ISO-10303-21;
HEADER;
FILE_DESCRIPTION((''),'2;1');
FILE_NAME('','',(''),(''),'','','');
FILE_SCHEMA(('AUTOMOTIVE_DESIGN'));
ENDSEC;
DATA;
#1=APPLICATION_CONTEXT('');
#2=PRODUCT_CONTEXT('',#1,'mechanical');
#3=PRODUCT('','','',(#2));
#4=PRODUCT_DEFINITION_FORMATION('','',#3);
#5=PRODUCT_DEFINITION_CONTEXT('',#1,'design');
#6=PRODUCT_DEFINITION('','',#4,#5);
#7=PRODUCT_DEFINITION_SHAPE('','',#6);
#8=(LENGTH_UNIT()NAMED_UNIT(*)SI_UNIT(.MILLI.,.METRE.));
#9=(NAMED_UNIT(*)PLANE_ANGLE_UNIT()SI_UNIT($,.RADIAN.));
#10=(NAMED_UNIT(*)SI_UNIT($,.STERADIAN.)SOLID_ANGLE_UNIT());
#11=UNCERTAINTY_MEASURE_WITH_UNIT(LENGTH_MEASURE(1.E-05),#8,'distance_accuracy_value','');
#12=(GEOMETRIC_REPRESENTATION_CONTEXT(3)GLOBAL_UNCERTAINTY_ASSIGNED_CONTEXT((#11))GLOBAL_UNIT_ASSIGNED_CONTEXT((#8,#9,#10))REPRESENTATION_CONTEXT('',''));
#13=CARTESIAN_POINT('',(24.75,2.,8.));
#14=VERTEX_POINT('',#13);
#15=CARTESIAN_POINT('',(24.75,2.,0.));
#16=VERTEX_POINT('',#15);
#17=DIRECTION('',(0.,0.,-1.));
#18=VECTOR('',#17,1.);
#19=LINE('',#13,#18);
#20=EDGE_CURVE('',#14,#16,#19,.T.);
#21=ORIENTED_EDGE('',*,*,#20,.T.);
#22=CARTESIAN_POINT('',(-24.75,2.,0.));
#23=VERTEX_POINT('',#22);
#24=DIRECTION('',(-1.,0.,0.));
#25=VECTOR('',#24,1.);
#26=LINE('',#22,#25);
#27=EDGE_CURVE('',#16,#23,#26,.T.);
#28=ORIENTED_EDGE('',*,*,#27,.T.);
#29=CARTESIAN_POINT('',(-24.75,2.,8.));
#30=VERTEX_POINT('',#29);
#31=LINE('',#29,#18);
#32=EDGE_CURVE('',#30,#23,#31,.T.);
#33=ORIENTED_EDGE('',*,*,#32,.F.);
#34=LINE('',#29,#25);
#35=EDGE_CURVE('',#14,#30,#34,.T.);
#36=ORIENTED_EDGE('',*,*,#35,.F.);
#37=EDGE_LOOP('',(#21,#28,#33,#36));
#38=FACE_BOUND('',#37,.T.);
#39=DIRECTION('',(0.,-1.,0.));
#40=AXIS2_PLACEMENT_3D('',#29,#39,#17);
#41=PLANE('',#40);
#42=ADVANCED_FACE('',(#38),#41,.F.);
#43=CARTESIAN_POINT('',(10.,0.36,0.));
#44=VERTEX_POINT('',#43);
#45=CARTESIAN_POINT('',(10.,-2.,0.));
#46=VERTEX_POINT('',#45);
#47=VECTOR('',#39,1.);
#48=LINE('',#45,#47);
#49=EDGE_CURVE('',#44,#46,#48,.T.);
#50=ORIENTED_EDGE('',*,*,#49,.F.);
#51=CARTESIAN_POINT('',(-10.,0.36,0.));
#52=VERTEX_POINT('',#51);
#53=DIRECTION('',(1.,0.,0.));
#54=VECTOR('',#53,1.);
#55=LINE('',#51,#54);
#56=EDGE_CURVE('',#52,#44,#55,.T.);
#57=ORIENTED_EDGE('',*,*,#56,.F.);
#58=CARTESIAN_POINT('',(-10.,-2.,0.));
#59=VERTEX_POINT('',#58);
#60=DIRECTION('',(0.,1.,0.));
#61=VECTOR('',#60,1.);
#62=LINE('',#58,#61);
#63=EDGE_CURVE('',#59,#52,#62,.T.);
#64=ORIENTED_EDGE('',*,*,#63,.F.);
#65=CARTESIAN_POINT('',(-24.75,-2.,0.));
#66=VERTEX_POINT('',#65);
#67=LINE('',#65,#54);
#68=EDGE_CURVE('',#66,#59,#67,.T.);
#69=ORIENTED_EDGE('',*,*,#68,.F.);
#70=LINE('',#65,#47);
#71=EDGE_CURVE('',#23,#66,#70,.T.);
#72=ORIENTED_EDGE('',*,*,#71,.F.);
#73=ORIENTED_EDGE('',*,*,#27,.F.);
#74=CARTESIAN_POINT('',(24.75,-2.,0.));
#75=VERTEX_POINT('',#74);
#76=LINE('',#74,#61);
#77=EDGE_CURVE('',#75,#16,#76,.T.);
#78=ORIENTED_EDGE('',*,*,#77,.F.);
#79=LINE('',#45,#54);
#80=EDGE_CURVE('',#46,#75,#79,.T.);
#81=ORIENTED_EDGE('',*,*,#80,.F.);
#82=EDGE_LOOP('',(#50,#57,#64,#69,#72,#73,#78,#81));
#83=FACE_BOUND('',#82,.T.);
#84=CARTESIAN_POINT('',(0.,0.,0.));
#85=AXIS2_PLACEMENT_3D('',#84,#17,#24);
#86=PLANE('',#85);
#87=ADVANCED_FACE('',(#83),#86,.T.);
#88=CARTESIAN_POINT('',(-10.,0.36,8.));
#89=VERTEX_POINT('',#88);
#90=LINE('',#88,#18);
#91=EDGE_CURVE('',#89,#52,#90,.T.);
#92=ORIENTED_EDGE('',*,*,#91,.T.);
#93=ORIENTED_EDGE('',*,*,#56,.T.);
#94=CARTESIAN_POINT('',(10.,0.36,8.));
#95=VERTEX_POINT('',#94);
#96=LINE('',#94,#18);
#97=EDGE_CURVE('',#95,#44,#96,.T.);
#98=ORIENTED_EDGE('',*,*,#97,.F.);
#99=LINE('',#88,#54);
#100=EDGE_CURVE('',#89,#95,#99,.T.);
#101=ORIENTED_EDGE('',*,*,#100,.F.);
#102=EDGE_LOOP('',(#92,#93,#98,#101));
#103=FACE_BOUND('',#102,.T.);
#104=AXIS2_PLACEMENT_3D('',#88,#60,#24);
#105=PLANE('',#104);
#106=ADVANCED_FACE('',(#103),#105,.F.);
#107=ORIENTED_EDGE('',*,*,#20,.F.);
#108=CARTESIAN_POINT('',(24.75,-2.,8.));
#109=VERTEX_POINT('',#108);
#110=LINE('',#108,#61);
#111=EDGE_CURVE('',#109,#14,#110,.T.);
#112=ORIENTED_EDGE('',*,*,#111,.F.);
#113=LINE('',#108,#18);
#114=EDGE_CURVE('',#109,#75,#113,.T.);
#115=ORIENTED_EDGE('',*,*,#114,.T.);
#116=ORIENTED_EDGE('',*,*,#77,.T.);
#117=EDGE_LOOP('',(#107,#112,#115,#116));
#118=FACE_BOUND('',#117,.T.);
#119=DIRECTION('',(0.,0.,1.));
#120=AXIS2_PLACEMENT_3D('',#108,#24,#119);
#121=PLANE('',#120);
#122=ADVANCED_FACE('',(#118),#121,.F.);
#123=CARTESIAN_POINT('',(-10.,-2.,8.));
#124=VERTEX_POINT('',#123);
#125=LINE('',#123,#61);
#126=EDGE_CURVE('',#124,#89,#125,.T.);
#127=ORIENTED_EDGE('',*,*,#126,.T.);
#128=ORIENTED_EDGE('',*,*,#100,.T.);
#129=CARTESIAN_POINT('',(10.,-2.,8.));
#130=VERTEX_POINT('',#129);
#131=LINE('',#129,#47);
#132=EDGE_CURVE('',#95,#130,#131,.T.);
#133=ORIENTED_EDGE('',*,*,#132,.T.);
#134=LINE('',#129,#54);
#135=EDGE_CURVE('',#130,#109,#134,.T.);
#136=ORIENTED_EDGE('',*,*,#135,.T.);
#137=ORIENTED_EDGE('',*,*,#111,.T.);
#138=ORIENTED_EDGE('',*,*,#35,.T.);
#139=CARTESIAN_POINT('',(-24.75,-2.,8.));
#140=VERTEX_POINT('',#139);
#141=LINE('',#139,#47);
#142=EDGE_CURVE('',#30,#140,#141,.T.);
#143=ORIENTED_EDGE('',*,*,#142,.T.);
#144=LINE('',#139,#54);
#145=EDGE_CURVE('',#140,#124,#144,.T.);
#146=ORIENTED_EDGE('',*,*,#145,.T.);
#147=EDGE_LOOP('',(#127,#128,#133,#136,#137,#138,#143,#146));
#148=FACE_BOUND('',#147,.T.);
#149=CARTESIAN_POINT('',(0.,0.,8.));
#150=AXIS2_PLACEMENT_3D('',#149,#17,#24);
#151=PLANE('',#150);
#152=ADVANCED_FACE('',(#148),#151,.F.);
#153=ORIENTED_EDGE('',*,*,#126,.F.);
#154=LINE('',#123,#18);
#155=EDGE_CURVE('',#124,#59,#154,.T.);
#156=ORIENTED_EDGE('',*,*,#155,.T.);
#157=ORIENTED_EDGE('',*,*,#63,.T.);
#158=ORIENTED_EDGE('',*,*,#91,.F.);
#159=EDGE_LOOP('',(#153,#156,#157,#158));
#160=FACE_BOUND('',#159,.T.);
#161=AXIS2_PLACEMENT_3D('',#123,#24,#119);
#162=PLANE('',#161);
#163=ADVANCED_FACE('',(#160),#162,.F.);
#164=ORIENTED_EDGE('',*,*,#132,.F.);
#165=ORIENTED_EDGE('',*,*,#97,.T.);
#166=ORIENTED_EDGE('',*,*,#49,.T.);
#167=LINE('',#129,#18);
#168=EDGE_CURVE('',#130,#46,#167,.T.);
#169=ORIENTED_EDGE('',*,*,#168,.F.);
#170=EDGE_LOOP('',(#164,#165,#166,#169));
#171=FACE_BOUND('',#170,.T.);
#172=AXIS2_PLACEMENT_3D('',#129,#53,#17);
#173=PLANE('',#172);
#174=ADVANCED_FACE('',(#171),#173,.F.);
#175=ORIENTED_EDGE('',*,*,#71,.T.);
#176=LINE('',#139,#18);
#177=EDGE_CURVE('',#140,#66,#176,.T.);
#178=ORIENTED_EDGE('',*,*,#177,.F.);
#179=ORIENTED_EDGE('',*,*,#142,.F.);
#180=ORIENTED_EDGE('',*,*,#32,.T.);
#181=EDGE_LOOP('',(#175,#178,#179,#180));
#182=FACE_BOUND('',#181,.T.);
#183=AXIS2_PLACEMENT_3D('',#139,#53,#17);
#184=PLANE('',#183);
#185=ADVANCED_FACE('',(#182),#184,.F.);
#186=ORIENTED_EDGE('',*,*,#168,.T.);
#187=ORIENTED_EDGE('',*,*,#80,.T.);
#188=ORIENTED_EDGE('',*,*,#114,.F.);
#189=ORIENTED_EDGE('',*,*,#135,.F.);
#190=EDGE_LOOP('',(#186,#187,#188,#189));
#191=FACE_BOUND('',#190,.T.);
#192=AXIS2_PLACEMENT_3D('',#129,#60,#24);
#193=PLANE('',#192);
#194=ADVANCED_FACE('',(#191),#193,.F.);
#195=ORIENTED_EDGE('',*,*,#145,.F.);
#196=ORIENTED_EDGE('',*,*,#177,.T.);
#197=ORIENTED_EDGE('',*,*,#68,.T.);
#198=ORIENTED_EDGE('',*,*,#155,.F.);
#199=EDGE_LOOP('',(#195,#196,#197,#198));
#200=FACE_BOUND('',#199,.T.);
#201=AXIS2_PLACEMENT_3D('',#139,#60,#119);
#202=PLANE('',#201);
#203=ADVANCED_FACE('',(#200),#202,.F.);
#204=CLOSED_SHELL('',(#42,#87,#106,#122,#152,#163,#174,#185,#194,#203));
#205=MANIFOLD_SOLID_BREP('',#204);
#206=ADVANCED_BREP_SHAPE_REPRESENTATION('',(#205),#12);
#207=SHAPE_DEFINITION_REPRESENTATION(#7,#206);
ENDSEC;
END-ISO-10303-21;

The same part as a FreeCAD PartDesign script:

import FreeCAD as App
import Part
import Sketcher
from FreeCAD import Vector
Q = App.Units.Quantity


def add_polygon(sketch, points):
    """Adds a closed chain of lines whose ends are joined by coincident constraints."""
    first, n = sketch.GeometryCount, len(points)
    for a, b in zip(points, points[1:] + points[:1]):
        sketch.addGeometry(Part.LineSegment(App.Vector(*a, 0), App.Vector(*b, 0)), False)
    for i in range(n):
        sketch.addConstraint(Sketcher.Constraint("Coincident", first + i, 2, first + (i + 1) % n, 1))

doc = App.newDocument("Part")
body = doc.addObject("PartDesign::Body", "Body")

# Sketch on XY plane
sketch1 = body.newObject("Sketcher::SketchObject", "Sketch")
sketch1.AttachmentSupport = (doc.getObject("XY_Plane"), [""])
sketch1.MapMode = "FlatFace"
add_polygon(sketch1, [(-24.75, -2), (-10, -2), (-10, 0.36), (10, 0.36), (10, -2), (24.75, -2), (24.75, 2), (-24.75, 2)])  # lines 0-7
sketch1.addConstraint([
    Sketcher.Constraint("Horizontal", 0),
    Sketcher.Constraint("Vertical", 1),
    Sketcher.Constraint("Horizontal", 2),
    Sketcher.Constraint("Vertical", 3),
    Sketcher.Constraint("Horizontal", 4),
    Sketcher.Constraint("Vertical", 5),
    Sketcher.Constraint("Horizontal", 6),
    Sketcher.Constraint("Vertical", 7),
    Sketcher.Constraint("Symmetric", 4, 2, 6, 2, -1, 1),
    Sketcher.Constraint("Symmetric", 0, 2, 3, 2, -2),
    Sketcher.Constraint("DistanceX", 2, 1, 2, 2, Q("20 mm")),
    Sketcher.Constraint("DistanceY", 5, 1, 5, 2, Q("4 mm")),
    Sketcher.Constraint("DistanceX", 6, 2, 6, 1, Q("49.5 mm")),
    Sketcher.Constraint("DistanceY", 1, 1, 1, 2, Q("2.36 mm")),
])
pad1 = body.newObject("PartDesign::Pad", "Pad")
pad1.Profile = sketch1
pad1.Length = 8

doc.recompute()
